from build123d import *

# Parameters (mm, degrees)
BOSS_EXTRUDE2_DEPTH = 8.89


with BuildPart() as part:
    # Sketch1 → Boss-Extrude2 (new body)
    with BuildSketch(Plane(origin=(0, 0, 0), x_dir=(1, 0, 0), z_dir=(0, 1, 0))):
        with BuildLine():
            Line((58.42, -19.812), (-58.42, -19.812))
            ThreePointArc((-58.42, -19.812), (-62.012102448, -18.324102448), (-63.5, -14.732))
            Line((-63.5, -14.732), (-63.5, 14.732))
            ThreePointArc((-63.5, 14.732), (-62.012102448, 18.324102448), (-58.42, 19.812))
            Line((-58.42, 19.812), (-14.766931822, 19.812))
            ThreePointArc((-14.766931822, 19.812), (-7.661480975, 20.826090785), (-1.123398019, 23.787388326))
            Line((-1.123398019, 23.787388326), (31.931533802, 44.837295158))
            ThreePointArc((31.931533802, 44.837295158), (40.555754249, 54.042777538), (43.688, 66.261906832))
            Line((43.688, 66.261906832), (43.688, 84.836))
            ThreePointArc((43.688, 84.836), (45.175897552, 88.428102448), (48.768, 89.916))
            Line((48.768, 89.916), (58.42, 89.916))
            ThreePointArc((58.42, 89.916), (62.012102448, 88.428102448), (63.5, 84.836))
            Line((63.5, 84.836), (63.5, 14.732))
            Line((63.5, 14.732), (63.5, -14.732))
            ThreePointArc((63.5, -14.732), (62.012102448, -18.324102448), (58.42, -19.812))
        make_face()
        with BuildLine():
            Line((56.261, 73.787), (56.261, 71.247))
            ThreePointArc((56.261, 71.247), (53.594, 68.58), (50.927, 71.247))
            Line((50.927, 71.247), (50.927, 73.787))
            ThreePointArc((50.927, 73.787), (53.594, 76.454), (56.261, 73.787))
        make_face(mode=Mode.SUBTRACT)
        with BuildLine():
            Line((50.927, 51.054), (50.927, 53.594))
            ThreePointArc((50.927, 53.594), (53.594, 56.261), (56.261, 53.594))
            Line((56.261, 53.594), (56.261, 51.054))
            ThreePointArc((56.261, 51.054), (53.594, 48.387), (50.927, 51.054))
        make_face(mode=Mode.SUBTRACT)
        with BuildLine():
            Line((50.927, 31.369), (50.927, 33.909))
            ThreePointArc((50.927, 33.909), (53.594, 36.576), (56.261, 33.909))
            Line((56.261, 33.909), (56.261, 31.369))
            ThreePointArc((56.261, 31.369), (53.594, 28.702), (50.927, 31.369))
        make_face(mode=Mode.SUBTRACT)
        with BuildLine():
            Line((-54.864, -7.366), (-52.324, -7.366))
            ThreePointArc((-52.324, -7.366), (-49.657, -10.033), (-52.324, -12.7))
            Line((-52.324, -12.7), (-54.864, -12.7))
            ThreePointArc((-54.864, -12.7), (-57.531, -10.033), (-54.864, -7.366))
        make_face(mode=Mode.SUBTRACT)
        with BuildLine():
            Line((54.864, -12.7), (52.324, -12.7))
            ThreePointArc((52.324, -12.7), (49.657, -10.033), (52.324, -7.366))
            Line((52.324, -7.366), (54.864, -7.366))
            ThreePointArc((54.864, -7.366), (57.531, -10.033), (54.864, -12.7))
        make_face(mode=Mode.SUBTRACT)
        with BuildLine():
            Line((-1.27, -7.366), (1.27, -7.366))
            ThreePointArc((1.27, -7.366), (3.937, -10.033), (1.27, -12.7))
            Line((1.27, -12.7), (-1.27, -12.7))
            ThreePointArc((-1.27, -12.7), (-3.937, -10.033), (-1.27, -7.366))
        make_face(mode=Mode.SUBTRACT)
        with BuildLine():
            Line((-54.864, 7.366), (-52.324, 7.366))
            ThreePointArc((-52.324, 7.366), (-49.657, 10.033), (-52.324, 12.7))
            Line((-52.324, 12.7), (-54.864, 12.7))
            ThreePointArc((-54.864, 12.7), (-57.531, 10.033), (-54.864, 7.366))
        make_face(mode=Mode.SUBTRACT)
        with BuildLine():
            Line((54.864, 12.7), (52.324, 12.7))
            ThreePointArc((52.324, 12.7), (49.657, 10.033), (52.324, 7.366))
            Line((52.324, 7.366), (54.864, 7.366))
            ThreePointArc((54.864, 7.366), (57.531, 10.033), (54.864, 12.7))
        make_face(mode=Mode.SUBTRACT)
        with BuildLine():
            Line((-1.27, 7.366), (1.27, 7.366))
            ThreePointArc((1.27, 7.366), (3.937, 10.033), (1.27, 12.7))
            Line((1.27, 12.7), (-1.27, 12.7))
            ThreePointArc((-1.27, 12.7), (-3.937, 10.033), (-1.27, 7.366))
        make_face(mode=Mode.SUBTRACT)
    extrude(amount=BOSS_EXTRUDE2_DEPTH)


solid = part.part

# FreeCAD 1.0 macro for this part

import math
import FreeCAD as App
import Part
import Sketcher
Q = App.Units.Quantity

doc = App.newDocument("Part")
body = doc.addObject("PartDesign::Body", "Body")

sketch1 = body.newObject("Sketcher::SketchObject", "Sketch")
sketch1.AttachmentSupport = (doc.getObject("XZ_Plane"), [""])
sketch1.MapMode = "FlatFace"
sketch1.addGeometry(Part.LineSegment(App.Vector(-58.42, 19.812, 0), App.Vector(58.42, 19.812, 0)), False)
sketch1.addGeometry(Part.ArcOfCircle(Part.Circle(App.Vector(58.42, 14.732, 0), App.Vector(0, 0, 1), 5.08), math.radians(0), math.radians(90)), False)
sketch1.addGeometry(Part.LineSegment(App.Vector(63.5, 14.732, 0), App.Vector(63.5, -84.836, 0)), False)
sketch1.addGeometry(Part.ArcOfCircle(Part.Circle(App.Vector(58.42, -84.836, 0), App.Vector(0, 0, 1), 5.08), math.radians(-90), math.radians(0)), False)
sketch1.addGeometry(Part.LineSegment(App.Vector(58.42, -89.916, 0), App.Vector(48.768, -89.916, 0)), False)
sketch1.addGeometry(Part.ArcOfCircle(Part.Circle(App.Vector(48.768, -84.836, 0), App.Vector(0, 0, 1), 5.08), math.radians(-180), math.radians(-90)), False)
sketch1.addGeometry(Part.LineSegment(App.Vector(43.688, -84.836, 0), App.Vector(43.688, -66.261907, 0)), False)
sketch1.addGeometry(Part.ArcOfCircle(Part.Circle(App.Vector(18.288, -66.261907, 0), App.Vector(0, 0, 1), 25.4), math.radians(0), math.radians(57.510367)), False)
sketch1.addGeometry(Part.LineSegment(App.Vector(31.931534, -44.837295, 0), App.Vector(-1.123398, -23.787388, 0)), False)
sketch1.addGeometry(Part.ArcOfCircle(Part.Circle(App.Vector(-14.766932, -45.212, 0), App.Vector(0, 0, 1), 25.4), math.radians(57.510367), math.radians(90)), False)
sketch1.addGeometry(Part.LineSegment(App.Vector(-14.766932, -19.812, 0), App.Vector(-58.42, -19.812, 0)), False)
sketch1.addGeometry(Part.ArcOfCircle(Part.Circle(App.Vector(-58.42, -14.732, 0), App.Vector(0, 0, 1), 5.08), math.radians(-180), math.radians(-90)), False)
sketch1.addGeometry(Part.LineSegment(App.Vector(-63.5, -14.732, 0), App.Vector(-63.5, 14.732, 0)), False)
sketch1.addGeometry(Part.ArcOfCircle(Part.Circle(App.Vector(-58.42, 14.732, 0), App.Vector(0, 0, 1), 5.08), math.radians(90), math.radians(180)), False)
sketch1.addGeometry(Part.LineSegment(App.Vector(54.864, 12.7, 0), App.Vector(52.324, 12.7, 0)), False)
sketch1.addGeometry(Part.ArcOfCircle(Part.Circle(App.Vector(52.324, 10.033, 0), App.Vector(0, 0, 1), 2.667), math.radians(90), math.radians(270)), False)
sketch1.addGeometry(Part.LineSegment(App.Vector(52.324, 7.366, 0), App.Vector(54.864, 7.366, 0)), False)
sketch1.addGeometry(Part.ArcOfCircle(Part.Circle(App.Vector(54.864, 10.033, 0), App.Vector(0, 0, 1), 2.667), math.radians(-90), math.radians(90)), False)
sketch1.addGeometry(Part.LineSegment(App.Vector(-1.27, 7.366, 0), App.Vector(1.27, 7.366, 0)), False)
sketch1.addGeometry(Part.ArcOfCircle(Part.Circle(App.Vector(1.27, 10.033, 0), App.Vector(0, 0, 1), 2.667), math.radians(-90), math.radians(90)), False)
sketch1.addGeometry(Part.LineSegment(App.Vector(1.27, 12.7, 0), App.Vector(-1.27, 12.7, 0)), False)
sketch1.addGeometry(Part.ArcOfCircle(Part.Circle(App.Vector(-1.27, 10.033, 0), App.Vector(0, 0, 1), 2.667), math.radians(90), math.radians(270)), False)
sketch1.addGeometry(Part.ArcOfCircle(Part.Circle(App.Vector(54.864, -10.033, 0), App.Vector(0, 0, 1), 2.667), math.radians(-90), math.radians(90)), False)
sketch1.addGeometry(Part.LineSegment(App.Vector(54.864, -7.366, 0), App.Vector(52.324, -7.366, 0)), False)
sketch1.addGeometry(Part.ArcOfCircle(Part.Circle(App.Vector(52.324, -10.033, 0), App.Vector(0, 0, 1), 2.667), math.radians(90), math.radians(270)), False)
sketch1.addGeometry(Part.LineSegment(App.Vector(52.324, -12.7, 0), App.Vector(54.864, -12.7, 0)), False)
sketch1.addGeometry(Part.ArcOfCircle(Part.Circle(App.Vector(-1.27, -10.033, 0), App.Vector(0, 0, 1), 2.667), math.radians(90), math.radians(270)), False)
sketch1.addGeometry(Part.LineSegment(App.Vector(-1.27, -12.7, 0), App.Vector(1.27, -12.7, 0)), False)
sketch1.addGeometry(Part.ArcOfCircle(Part.Circle(App.Vector(1.27, -10.033, 0), App.Vector(0, 0, 1), 2.667), math.radians(-90), math.radians(90)), False)
sketch1.addGeometry(Part.LineSegment(App.Vector(1.27, -7.366, 0), App.Vector(-1.27, -7.366, 0)), False)
sketch1.addGeometry(Part.LineSegment(App.Vector(-54.864, 7.366, 0), App.Vector(-52.324, 7.366, 0)), False)
sketch1.addGeometry(Part.ArcOfCircle(Part.Circle(App.Vector(-52.324, 10.033, 0), App.Vector(0, 0, 1), 2.667), math.radians(-90), math.radians(90)), False)
sketch1.addGeometry(Part.LineSegment(App.Vector(-52.324, 12.7, 0), App.Vector(-54.864, 12.7, 0)), False)
sketch1.addGeometry(Part.ArcOfCircle(Part.Circle(App.Vector(-54.864, 10.033, 0), App.Vector(0, 0, 1), 2.667), math.radians(90), math.radians(270)), False)
sketch1.addGeometry(Part.ArcOfCircle(Part.Circle(App.Vector(-54.864, -10.033, 0), App.Vector(0, 0, 1), 2.667), math.radians(90), math.radians(270)), False)
sketch1.addGeometry(Part.LineSegment(App.Vector(-54.864, -12.7, 0), App.Vector(-52.324, -12.7, 0)), False)
sketch1.addGeometry(Part.ArcOfCircle(Part.Circle(App.Vector(-52.324, -10.033, 0), App.Vector(0, 0, 1), 2.667), math.radians(-90), math.radians(90)), False)
sketch1.addGeometry(Part.LineSegment(App.Vector(-52.324, -7.366, 0), App.Vector(-54.864, -7.366, 0)), False)
sketch1.addGeometry(Part.LineSegment(App.Vector(50.927, -31.369, 0), App.Vector(50.927, -33.909, 0)), False)
sketch1.addGeometry(Part.ArcOfCircle(Part.Circle(App.Vector(53.594, -33.909, 0), App.Vector(0, 0, 1), 2.667), math.radians(180), math.radians(360)), False)
sketch1.addGeometry(Part.LineSegment(App.Vector(56.261, -33.909, 0), App.Vector(56.261, -31.369, 0)), False)
sketch1.addGeometry(Part.ArcOfCircle(Part.Circle(App.Vector(53.594, -31.369, 0), App.Vector(0, 0, 1), 2.667), math.radians(0), math.radians(180)), False)
sketch1.addGeometry(Part.LineSegment(App.Vector(50.927, -51.054, 0), App.Vector(50.927, -53.594, 0)), False)
sketch1.addGeometry(Part.ArcOfCircle(Part.Circle(App.Vector(53.594, -53.594, 0), App.Vector(0, 0, 1), 2.667), math.radians(180), math.radians(360)), False)
sketch1.addGeometry(Part.LineSegment(App.Vector(56.261, -53.594, 0), App.Vector(56.261, -51.054, 0)), False)
sketch1.addGeometry(Part.ArcOfCircle(Part.Circle(App.Vector(53.594, -51.054, 0), App.Vector(0, 0, 1), 2.667), math.radians(0), math.radians(180)), False)
sketch1.addGeometry(Part.LineSegment(App.Vector(56.261, -73.787, 0), App.Vector(56.261, -71.247, 0)), False)
sketch1.addGeometry(Part.ArcOfCircle(Part.Circle(App.Vector(53.594, -71.247, 0), App.Vector(0, 0, 1), 2.667), math.radians(0), math.radians(180)), False)
sketch1.addGeometry(Part.LineSegment(App.Vector(50.927, -71.247, 0), App.Vector(50.927, -73.787, 0)), False)
sketch1.addGeometry(Part.ArcOfCircle(Part.Circle(App.Vector(53.594, -73.787, 0), App.Vector(0, 0, 1), 2.667), math.radians(180), math.radians(360)), False)
sketch1.addConstraint(Sketcher.Constraint("Tangent", 0, 2, 1, 2))
sketch1.addConstraint(Sketcher.Constraint("Tangent", 1, 1, 2, 1))
sketch1.addConstraint(Sketcher.Constraint("Tangent", 2, 2, 3, 2))
sketch1.addConstraint(Sketcher.Constraint("Tangent", 3, 1, 4, 1))
sketch1.addConstraint(Sketcher.Constraint("Tangent", 4, 2, 5, 2))
sketch1.addConstraint(Sketcher.Constraint("Tangent", 5, 1, 6, 1))
sketch1.addConstraint(Sketcher.Constraint("Tangent", 6, 2, 7, 1))
sketch1.addConstraint(Sketcher.Constraint("Tangent", 7, 2, 8, 1))
sketch1.addConstraint(Sketcher.Constraint("Tangent", 8, 2, 9, 1))
sketch1.addConstraint(Sketcher.Constraint("Tangent", 9, 2, 10, 1))
sketch1.addConstraint(Sketcher.Constraint("Tangent", 10, 2, 11, 2))
sketch1.addConstraint(Sketcher.Constraint("Tangent", 11, 1, 12, 1))
sketch1.addConstraint(Sketcher.Constraint("Tangent", 12, 2, 13, 2))
sketch1.addConstraint(Sketcher.Constraint("Tangent", 13, 1, 0, 1))
sketch1.addConstraint(Sketcher.Constraint("Tangent", 14, 2, 15, 1))
sketch1.addConstraint(Sketcher.Constraint("Tangent", 15, 2, 16, 1))
sketch1.addConstraint(Sketcher.Constraint("Tangent", 16, 2, 17, 1))
sketch1.addConstraint(Sketcher.Constraint("Tangent", 17, 2, 14, 1))
sketch1.addConstraint(Sketcher.Constraint("Tangent", 18, 2, 19, 1))
sketch1.addConstraint(Sketcher.Constraint("Tangent", 19, 2, 20, 1))
sketch1.addConstraint(Sketcher.Constraint("Tangent", 20, 2, 21, 1))
sketch1.addConstraint(Sketcher.Constraint("Tangent", 21, 2, 18, 1))
sketch1.addConstraint(Sketcher.Constraint("Tangent", 22, 2, 23, 1))
sketch1.addConstraint(Sketcher.Constraint("Tangent", 23, 2, 24, 1))
sketch1.addConstraint(Sketcher.Constraint("Tangent", 24, 2, 25, 1))
sketch1.addConstraint(Sketcher.Constraint("Tangent", 25, 2, 22, 1))
sketch1.addConstraint(Sketcher.Constraint("Tangent", 26, 2, 27, 1))
sketch1.addConstraint(Sketcher.Constraint("Tangent", 27, 2, 28, 1))
sketch1.addConstraint(Sketcher.Constraint("Tangent", 28, 2, 29, 1))
sketch1.addConstraint(Sketcher.Constraint("Tangent", 29, 2, 26, 1))
sketch1.addConstraint(Sketcher.Constraint("Tangent", 30, 2, 31, 1))
sketch1.addConstraint(Sketcher.Constraint("Tangent", 31, 2, 32, 1))
sketch1.addConstraint(Sketcher.Constraint("Tangent", 32, 2, 33, 1))
sketch1.addConstraint(Sketcher.Constraint("Tangent", 33, 2, 30, 1))
sketch1.addConstraint(Sketcher.Constraint("Tangent", 34, 2, 35, 1))
sketch1.addConstraint(Sketcher.Constraint("Tangent", 35, 2, 36, 1))
sketch1.addConstraint(Sketcher.Constraint("Tangent", 36, 2, 37, 1))
sketch1.addConstraint(Sketcher.Constraint("Tangent", 37, 2, 34, 1))
sketch1.addConstraint(Sketcher.Constraint("Tangent", 38, 2, 39, 1))
sketch1.addConstraint(Sketcher.Constraint("Tangent", 39, 2, 40, 1))
sketch1.addConstraint(Sketcher.Constraint("Tangent", 40, 2, 41, 1))
sketch1.addConstraint(Sketcher.Constraint("Tangent", 41, 2, 38, 1))
sketch1.addConstraint(Sketcher.Constraint("Tangent", 42, 2, 43, 1))
sketch1.addConstraint(Sketcher.Constraint("Tangent", 43, 2, 44, 1))
sketch1.addConstraint(Sketcher.Constraint("Tangent", 44, 2, 45, 1))
sketch1.addConstraint(Sketcher.Constraint("Tangent", 45, 2, 42, 1))
sketch1.addConstraint(Sketcher.Constraint("Tangent", 46, 2, 47, 1))
sketch1.addConstraint(Sketcher.Constraint("Tangent", 47, 2, 48, 1))
sketch1.addConstraint(Sketcher.Constraint("Tangent", 48, 2, 49, 1))
sketch1.addConstraint(Sketcher.Constraint("Tangent", 49, 2, 46, 1))
sketch1.addConstraint(Sketcher.Constraint("Horizontal", 0))
sketch1.addConstraint(Sketcher.Constraint("Vertical", 2))
sketch1.addConstraint(Sketcher.Constraint("Horizontal", 4))
sketch1.addConstraint(Sketcher.Constraint("Vertical", 6))
sketch1.addConstraint(Sketcher.Constraint("Horizontal", 10))
sketch1.addConstraint(Sketcher.Constraint("Vertical", 12))
sketch1.addConstraint(Sketcher.Constraint("Horizontal", 14))
sketch1.addConstraint(Sketcher.Constraint("Horizontal", 16))
sketch1.addConstraint(Sketcher.Constraint("Horizontal", 18))
sketch1.addConstraint(Sketcher.Constraint("Horizontal", 20))
sketch1.addConstraint(Sketcher.Constraint("Horizontal", 23))
sketch1.addConstraint(Sketcher.Constraint("Horizontal", 25))
sketch1.addConstraint(Sketcher.Constraint("Horizontal", 27))
sketch1.addConstraint(Sketcher.Constraint("Horizontal", 29))
sketch1.addConstraint(Sketcher.Constraint("Horizontal", 30))
sketch1.addConstraint(Sketcher.Constraint("Horizontal", 32))
sketch1.addConstraint(Sketcher.Constraint("Horizontal", 35))
sketch1.addConstraint(Sketcher.Constraint("Horizontal", 37))
sketch1.addConstraint(Sketcher.Constraint("Vertical", 38))
sketch1.addConstraint(Sketcher.Constraint("Vertical", 40))
sketch1.addConstraint(Sketcher.Constraint("Vertical", 42))
sketch1.addConstraint(Sketcher.Constraint("Vertical", 44))
sketch1.addConstraint(Sketcher.Constraint("Vertical", 46))
sketch1.addConstraint(Sketcher.Constraint("Vertical", 48))
sketch1.addConstraint(Sketcher.Constraint("Equal", 1, 3))
sketch1.addConstraint(Sketcher.Constraint("Equal", 3, 5))
sketch1.addConstraint(Sketcher.Constraint("Equal", 7, 9))
sketch1.addConstraint(Sketcher.Constraint("Equal", 5, 11))
sketch1.addConstraint(Sketcher.Constraint("Equal", 11, 13))
sketch1.addConstraint(Sketcher.Constraint("Equal", 17, 19))
sketch1.addConstraint(Sketcher.Constraint("Equal", 21, 22))
sketch1.addConstraint(Sketcher.Constraint("Equal", 24, 26))
sketch1.addConstraint(Sketcher.Constraint("Equal", 28, 31))
sketch1.addConstraint(Sketcher.Constraint("Equal", 33, 34))
sketch1.addConstraint(Sketcher.Constraint("Equal", 36, 39))
sketch1.addConstraint(Sketcher.Constraint("Equal", 41, 43))
sketch1.addConstraint(Sketcher.Constraint("Equal", 45, 47))
sketch1.addConstraint(Sketcher.Constraint("Symmetric", 1, 3, 11, 3, -1, 1))
sketch1.addConstraint(Sketcher.Constraint("Symmetric", 19, 3, 26, 3, -1, 1))
sketch1.addConstraint(Sketcher.Constraint("Symmetric", 24, 3, 31, 3, -1, 1))
sketch1.addConstraint(Sketcher.Constraint("Symmetric", 17, 3, 34, 3, -1, 1))
sketch1.addConstraint(Sketcher.Constraint("Symmetric", 15, 3, 31, 3, -2))
sketch1.addConstraint(Sketcher.Constraint("Horizontal", 17, 3, 19, 3))
sketch1.addConstraint(Sketcher.Constraint("Vertical", 17, 3, 22, 3))
sketch1.addConstraint(Sketcher.Constraint("Vertical", 21, 3, 26, 3))
sketch1.addConstraint(Sketcher.Constraint("Vertical", 19, 3, 28, 3))
sketch1.addConstraint(Sketcher.Constraint("Vertical", 33, 3, 34, 3))
sketch1.addConstraint(Sketcher.Constraint("Vertical", 31, 3, 36, 3))
sketch1.addConstraint(Sketcher.Constraint("Vertical", 41, 3, 43, 3))
sketch1.addConstraint(Sketcher.Constraint("Vertical", 45, 3, 47, 3))
sketch1.addConstraint(Sketcher.Constraint("Equal", 16, 18))
sketch1.addConstraint(Sketcher.Constraint("Equal", 37, 38))
sketch1.addConstraint(Sketcher.Constraint("Equal", 40, 42))
sketch1.addConstraint(Sketcher.Constraint("Equal", 44, 46))
sketch1.addConstraint(Sketcher.Constraint("Radius", 7, Q("1 in")))
sketch1.addConstraint(Sketcher.Constraint("Radius", 1, Q("0.2 in")))
sketch1.addConstraint(Sketcher.Constraint("DistanceX", 0, 1, 0, 2, Q("4.6 in")))
sketch1.addConstraint(Sketcher.Constraint("DistanceX", 14, 2, 14, 1, Q("0.1 in")))
sketch1.addConstraint(Sketcher.Constraint("Radius", 15, Q("0.105 in")))
sketch1.addConstraint(Sketcher.Constraint("DistanceX", 4, 2, 4, 1, Q("0.38 in")))
sketch1.addConstraint(Sketcher.Constraint("DistanceY", 2, 2, 2, 1, Q("3.92 in")))
sketch1.addConstraint(Sketcher.Constraint("DistanceY", 12, 1, 12, 2, Q("1.16 in")))
sketch1.addConstraint(Sketcher.Constraint("DistanceY", -1, 1, 14, 2, Q("0.5 in")))
sketch1.addConstraint(Sketcher.Constraint("DistanceX", -1, 1, 15, 3, Q("2.06 in")))
sketch1.addConstraint(Sketcher.Constraint("DistanceX", -1, 1, 39, 3, Q("2.11 in")))
sketch1.addConstraint(Sketcher.Constraint("DistanceY", 43, 3, -1, 1, Q("2.11 in")))
sketch1.addConstraint(Sketcher.Constraint("DistanceY", 39, 3, -1, 1, Q("1.335 in")))
sketch1.addConstraint(Sketcher.Constraint("DistanceY", 47, 3, -1, 1, Q("2.805 in")))
sketch1.addConstraint(Sketcher.Constraint("DistanceX", 10, 2, 10, 1, Q("43.653068 mm")))
sketch1.addConstraint(Sketcher.Constraint("DistanceX", 8, 2, -1, 1, Q("1.123398 mm")))
pad1 = body.newObject("PartDesign::Pad", "Pad")
pad1.Profile = sketch1
pad1.Length = Q("0.35 in")
pad1.Reversed = True

doc.recompute()
